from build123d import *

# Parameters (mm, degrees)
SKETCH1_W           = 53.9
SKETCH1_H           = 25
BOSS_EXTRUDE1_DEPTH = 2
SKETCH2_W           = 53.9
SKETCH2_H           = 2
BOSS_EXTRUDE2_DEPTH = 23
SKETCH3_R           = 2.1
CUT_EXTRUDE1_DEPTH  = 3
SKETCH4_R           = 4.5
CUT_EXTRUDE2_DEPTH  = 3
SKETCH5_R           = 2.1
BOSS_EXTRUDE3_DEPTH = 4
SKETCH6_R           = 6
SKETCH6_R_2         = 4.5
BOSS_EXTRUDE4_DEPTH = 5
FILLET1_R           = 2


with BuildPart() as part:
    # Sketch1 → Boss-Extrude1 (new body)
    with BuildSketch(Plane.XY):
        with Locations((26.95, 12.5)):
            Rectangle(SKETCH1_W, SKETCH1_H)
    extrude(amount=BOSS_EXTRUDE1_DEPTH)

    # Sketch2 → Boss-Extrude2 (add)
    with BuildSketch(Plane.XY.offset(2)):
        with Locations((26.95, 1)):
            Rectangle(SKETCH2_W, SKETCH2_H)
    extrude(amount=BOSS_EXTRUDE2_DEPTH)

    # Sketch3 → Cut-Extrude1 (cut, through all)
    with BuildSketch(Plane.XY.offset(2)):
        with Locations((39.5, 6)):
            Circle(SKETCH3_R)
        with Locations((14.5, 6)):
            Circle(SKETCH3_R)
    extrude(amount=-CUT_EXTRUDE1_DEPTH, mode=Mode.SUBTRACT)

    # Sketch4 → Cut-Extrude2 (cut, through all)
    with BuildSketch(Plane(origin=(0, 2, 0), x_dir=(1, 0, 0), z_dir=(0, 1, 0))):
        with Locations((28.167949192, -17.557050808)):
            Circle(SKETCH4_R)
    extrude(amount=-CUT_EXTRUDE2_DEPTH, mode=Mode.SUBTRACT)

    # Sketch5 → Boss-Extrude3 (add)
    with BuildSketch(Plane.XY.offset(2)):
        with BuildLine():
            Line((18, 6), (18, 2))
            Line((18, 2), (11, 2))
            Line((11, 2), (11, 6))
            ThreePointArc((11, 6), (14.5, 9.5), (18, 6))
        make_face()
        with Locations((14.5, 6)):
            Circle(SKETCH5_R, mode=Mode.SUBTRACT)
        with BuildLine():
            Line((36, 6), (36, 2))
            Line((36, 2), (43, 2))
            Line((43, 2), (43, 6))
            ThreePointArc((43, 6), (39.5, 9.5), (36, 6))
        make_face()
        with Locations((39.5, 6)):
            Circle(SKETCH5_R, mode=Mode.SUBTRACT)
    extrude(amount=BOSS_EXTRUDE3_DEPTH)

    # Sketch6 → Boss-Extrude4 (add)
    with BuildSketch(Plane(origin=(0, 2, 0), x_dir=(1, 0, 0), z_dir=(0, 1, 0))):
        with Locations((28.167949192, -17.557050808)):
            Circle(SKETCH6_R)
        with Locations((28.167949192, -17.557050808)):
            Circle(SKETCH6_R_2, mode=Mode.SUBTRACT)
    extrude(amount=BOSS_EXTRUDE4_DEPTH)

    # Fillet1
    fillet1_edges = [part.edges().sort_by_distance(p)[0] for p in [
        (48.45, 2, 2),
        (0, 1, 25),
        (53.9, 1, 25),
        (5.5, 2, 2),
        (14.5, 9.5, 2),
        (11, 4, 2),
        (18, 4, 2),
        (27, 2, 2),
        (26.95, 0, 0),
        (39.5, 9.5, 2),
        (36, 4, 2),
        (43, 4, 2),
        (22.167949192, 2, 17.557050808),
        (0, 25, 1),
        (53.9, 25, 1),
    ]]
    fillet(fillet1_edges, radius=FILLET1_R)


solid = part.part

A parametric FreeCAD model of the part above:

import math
import FreeCAD as App
import Part
import Sketcher
Q = App.Units.Quantity


def edges_at(feature, points):
    """Names of the edges that pass closest to the given points."""
    edges = feature.Shape.Edges
    near = lambda p: min(range(len(edges)), key=lambda i: edges[i].distToShape(Part.Vertex(*p))[0])
    return sorted({f"Edge{near(p) + 1}" for p in points})


def add_polygon(sketch, points):
    """Adds a closed chain of lines whose ends are joined by coincident constraints."""
    first, n = sketch.GeometryCount, len(points)
    for a, b in zip(points, points[1:] + points[:1]):
        sketch.addGeometry(Part.LineSegment(App.Vector(*a, 0), App.Vector(*b, 0)), False)
    for i in range(n):
        sketch.addConstraint(Sketcher.Constraint("Coincident", first + i, 2, first + (i + 1) % n, 1))

doc = App.newDocument("Part")
body = doc.addObject("PartDesign::Body", "Body")

# Sketch on XY plane
sketch1 = doc.addObject("Sketcher::SketchObject", "Sketch")
body.addObject(sketch1)
sketch1.AttachmentSupport = (doc.XY_Plane, [""])
sketch1.MapMode = "FlatFace"
add_polygon(sketch1, [(0, 25), (0, 0), (54, 0), (54, 25)])  # lines 0-3
sketch1.addConstraint([
    Sketcher.Constraint("Vertical", 0),
    Sketcher.Constraint("Horizontal", 1),
    Sketcher.Constraint("Vertical", 2),
    Sketcher.Constraint("Horizontal", 3),
    Sketcher.Constraint("Coincident", 0, 2, -1, 1),
    Sketcher.Constraint("DistanceY", 0, 2, 0, 1, Q("25 mm")),
    Sketcher.Constraint("DistanceX", 1, 1, 1, 2, Q("53.9 mm")),
])
pad1 = doc.addObject("PartDesign::Pad", "Pad")
body.addObject(pad1)
pad1.Profile = sketch1
pad1.Length = 2

# Sketch on XY plane
sketch2 = doc.addObject("Sketcher::SketchObject", "Sketch001")
body.addObject(sketch2)
sketch2.AttachmentSupport = (doc.XY_Plane, [""])
sketch2.MapMode = "FlatFace"
sketch2.AttachmentOffset = App.Placement(App.Vector(0, 0, 2), App.Rotation())
add_polygon(sketch2, [(0, 2), (0, 0), (53.9, 0), (53.9, 2)])  # lines 0-3
sketch2.addConstraint([
    Sketcher.Constraint("Vertical", 0),
    Sketcher.Constraint("Horizontal", 1),
    Sketcher.Constraint("Vertical", 2),
    Sketcher.Constraint("Horizontal", 3),
    Sketcher.Constraint("Coincident", 0, 2, -1, 1),
    Sketcher.Constraint("DistanceY", 0, 2, 0, 1, Q("2 mm")),
    Sketcher.Constraint("DistanceX", 1, 1, 1, 2, Q("53.9 mm")),
])
pad2 = doc.addObject("PartDesign::Pad", "Pad001")
body.addObject(pad2)
pad2.Profile = sketch2
pad2.Length = 23

# Sketch on XY plane
sketch3 = doc.addObject("Sketcher::SketchObject", "Sketch002")
body.addObject(sketch3)
sketch3.AttachmentSupport = (doc.XY_Plane, [""])
sketch3.MapMode = "FlatFace"
sketch3.AttachmentOffset = App.Placement(App.Vector(0, 0, 2), App.Rotation())
sketch3.addGeometry([
    Part.Circle(App.Vector(39.5, 6, 0), App.Vector(0, 0, 1), 2.1),
    Part.Circle(App.Vector(14.5, 6, 0), App.Vector(0, 0, 1), 2.1),
], False)
sketch3.addConstraint([
    Sketcher.Constraint("Equal", 0, 1),
    Sketcher.Constraint("Horizontal", 0, 3, 1, 3),
    Sketcher.Constraint("Diameter", 0, Q("4.2 mm")),
    Sketcher.Constraint("DistanceY", -1, 1, 0, 3, Q("6 mm")),
    Sketcher.Constraint("DistanceX", 1, 3, 0, 3, Q("25 mm")),
    Sketcher.Constraint("DistanceX", -1, 1, 0, 3, Q("39.5 mm")),
])
pocket1 = doc.addObject("PartDesign::Pocket", "Pocket")
body.addObject(pocket1)
pocket1.Profile = sketch3
pocket1.Type = "ThroughAll"

# Sketch on XZ plane
sketch4 = doc.addObject("Sketcher::SketchObject", "Sketch003")
body.addObject(sketch4)
sketch4.AttachmentSupport = (doc.XZ_Plane, [""])
sketch4.MapMode = "FlatFace"
sketch4.AttachmentOffset = App.Placement(App.Vector(0, 0, -2), App.Rotation())
sketch4.addGeometry(Part.Circle(App.Vector(28.2, 17.6, 0), App.Vector(0, 0, 1), 4.5), False)
sketch4.addConstraint([
    Sketcher.Constraint("Diameter", 0, Q("9 mm")),
    Sketcher.Constraint("DistanceX", -1, 1, 0, 3, Q("28.167949 mm")),
    Sketcher.Constraint("DistanceY", -1, 1, 0, 3, Q("17.557051 mm")),
])
pocket2 = doc.addObject("PartDesign::Pocket", "Pocket001")
body.addObject(pocket2)
pocket2.Profile = sketch4
pocket2.Type = "ThroughAll"
pocket2.Reversed = True

# Sketch on XY plane
sketch5 = doc.addObject("Sketcher::SketchObject", "Sketch004")
body.addObject(sketch5)
sketch5.AttachmentSupport = (doc.XY_Plane, [""])
sketch5.MapMode = "FlatFace"
sketch5.AttachmentOffset = App.Placement(App.Vector(0, 0, 2), App.Rotation())
sketch5.addGeometry([
    Part.LineSegment(App.Vector(18, 2, 0), App.Vector(18, 6, 0)),  # 0
    Part.ArcOfCircle(Part.Circle(App.Vector(14.5, 6, 0), App.Vector(0, 0, 1), 3.5), math.radians(0), math.radians(180)),  # 1
    Part.LineSegment(App.Vector(11, 6, 0), App.Vector(11, 2, 0)),  # 2
    Part.LineSegment(App.Vector(11, 2, 0), App.Vector(18, 2, 0)),  # 3
    Part.Circle(App.Vector(14.5, 6, 0), App.Vector(0, 0, 1), 2.1),  # 4
    Part.LineSegment(App.Vector(36, 6, 0), App.Vector(36, 2, 0)),  # 5
    Part.LineSegment(App.Vector(36, 2, 0), App.Vector(43, 2, 0)),  # 6
    Part.LineSegment(App.Vector(43, 2, 0), App.Vector(43, 6, 0)),  # 7
    Part.ArcOfCircle(Part.Circle(App.Vector(39.5, 6, 0), App.Vector(0, 0, 1), 3.5), math.radians(0), math.radians(180)),  # 8
    Part.Circle(App.Vector(39.5, 6, 0), App.Vector(0, 0, 1), 2.1),  # 9
], False)
sketch5.addConstraint([
    Sketcher.Constraint("Tangent", 0, 2, 1, 1),
    Sketcher.Constraint("Tangent", 1, 2, 2, 1),
    Sketcher.Constraint("Coincident", 2, 2, 3, 1),
    Sketcher.Constraint("Coincident", 3, 2, 0, 1),
    Sketcher.Constraint("Coincident", 5, 2, 6, 1),
    Sketcher.Constraint("Coincident", 6, 2, 7, 1),
    Sketcher.Constraint("Tangent", 7, 2, 8, 1),
    Sketcher.Constraint("Tangent", 8, 2, 5, 1),
    Sketcher.Constraint("Vertical", 0),
    Sketcher.Constraint("Vertical", 2),
    Sketcher.Constraint("Horizontal", 3),
    Sketcher.Constraint("Vertical", 5),
    Sketcher.Constraint("Horizontal", 6),
    Sketcher.Constraint("Vertical", 7),
    Sketcher.Constraint("Coincident", 4, 3, 1, 3),
    Sketcher.Constraint("Coincident", 9, 3, 8, 3),
    Sketcher.Constraint("Equal", 1, 8),
    Sketcher.Constraint("Equal", 4, 9),
    Sketcher.Constraint("Horizontal", 4, 3, 8, 3),
    Sketcher.Constraint("Horizontal", 3, 2, 5, 2),
    Sketcher.Constraint("Diameter", 4, Q("4.2 mm")),
    Sketcher.Constraint("Radius", 1, Q("3.5 mm")),
    Sketcher.Constraint("DistanceY", 0, 1, 0, 2, Q("4 mm")),
    Sketcher.Constraint("DistanceY", -1, 1, 1, 3, Q("6 mm")),
    Sketcher.Constraint("DistanceX", -1, 1, 0, 2, Q("18 mm")),
    Sketcher.Constraint("DistanceX", -1, 1, 5, 2, Q("36 mm")),
])
pad3 = doc.addObject("PartDesign::Pad", "Pad002")
body.addObject(pad3)
pad3.Profile = sketch5
pad3.Length = 4

# Sketch on XZ plane
sketch6 = doc.addObject("Sketcher::SketchObject", "Sketch005")
body.addObject(sketch6)
sketch6.AttachmentSupport = (doc.XZ_Plane, [""])
sketch6.MapMode = "FlatFace"
sketch6.AttachmentOffset = App.Placement(App.Vector(0, 0, -2), App.Rotation())
sketch6.addGeometry([
    Part.Circle(App.Vector(28.2, 17.6, 0), App.Vector(0, 0, 1), 6),
    Part.Circle(App.Vector(28.2, 17.6, 0), App.Vector(0, 0, 1), 4.5),
], False)
sketch6.addConstraint([
    Sketcher.Constraint("Coincident", 1, 3, 0, 3),
    Sketcher.Constraint("Diameter", 0, Q("12 mm")),
    Sketcher.Constraint("Diameter", 1, Q("9 mm")),
    Sketcher.Constraint("DistanceX", -1, 1, 0, 3, Q("28.167949 mm")),
    Sketcher.Constraint("DistanceY", -1, 1, 0, 3, Q("17.557051 mm")),
])
pad4 = doc.addObject("PartDesign::Pad", "Pad003")
body.addObject(pad4)
pad4.Profile = sketch6
pad4.Length = 5
pad4.Reversed = True
doc.recompute()

fillet = doc.addObject("PartDesign::Fillet", "Fillet")
body.addObject(fillet)
fillet.Base = (pad4, edges_at(pad4, [
    (48.45, 2, 2),
    (0, 1, 25),
    (53.9, 1, 25),
    (5.5, 2, 2),
    (14.5, 9.5, 2),
    (11, 4, 2),
    (18, 4, 2),
    (27, 2, 2),
    (26.95, 0, 0),
    (39.5, 9.5, 2),
    (36, 4, 2),
    (43, 4, 2),
    (22.168, 2, 17.557),
    (0, 25, 1),
    (53.9, 25, 1),
]))
fillet.Radius = 2

doc.recompute()
